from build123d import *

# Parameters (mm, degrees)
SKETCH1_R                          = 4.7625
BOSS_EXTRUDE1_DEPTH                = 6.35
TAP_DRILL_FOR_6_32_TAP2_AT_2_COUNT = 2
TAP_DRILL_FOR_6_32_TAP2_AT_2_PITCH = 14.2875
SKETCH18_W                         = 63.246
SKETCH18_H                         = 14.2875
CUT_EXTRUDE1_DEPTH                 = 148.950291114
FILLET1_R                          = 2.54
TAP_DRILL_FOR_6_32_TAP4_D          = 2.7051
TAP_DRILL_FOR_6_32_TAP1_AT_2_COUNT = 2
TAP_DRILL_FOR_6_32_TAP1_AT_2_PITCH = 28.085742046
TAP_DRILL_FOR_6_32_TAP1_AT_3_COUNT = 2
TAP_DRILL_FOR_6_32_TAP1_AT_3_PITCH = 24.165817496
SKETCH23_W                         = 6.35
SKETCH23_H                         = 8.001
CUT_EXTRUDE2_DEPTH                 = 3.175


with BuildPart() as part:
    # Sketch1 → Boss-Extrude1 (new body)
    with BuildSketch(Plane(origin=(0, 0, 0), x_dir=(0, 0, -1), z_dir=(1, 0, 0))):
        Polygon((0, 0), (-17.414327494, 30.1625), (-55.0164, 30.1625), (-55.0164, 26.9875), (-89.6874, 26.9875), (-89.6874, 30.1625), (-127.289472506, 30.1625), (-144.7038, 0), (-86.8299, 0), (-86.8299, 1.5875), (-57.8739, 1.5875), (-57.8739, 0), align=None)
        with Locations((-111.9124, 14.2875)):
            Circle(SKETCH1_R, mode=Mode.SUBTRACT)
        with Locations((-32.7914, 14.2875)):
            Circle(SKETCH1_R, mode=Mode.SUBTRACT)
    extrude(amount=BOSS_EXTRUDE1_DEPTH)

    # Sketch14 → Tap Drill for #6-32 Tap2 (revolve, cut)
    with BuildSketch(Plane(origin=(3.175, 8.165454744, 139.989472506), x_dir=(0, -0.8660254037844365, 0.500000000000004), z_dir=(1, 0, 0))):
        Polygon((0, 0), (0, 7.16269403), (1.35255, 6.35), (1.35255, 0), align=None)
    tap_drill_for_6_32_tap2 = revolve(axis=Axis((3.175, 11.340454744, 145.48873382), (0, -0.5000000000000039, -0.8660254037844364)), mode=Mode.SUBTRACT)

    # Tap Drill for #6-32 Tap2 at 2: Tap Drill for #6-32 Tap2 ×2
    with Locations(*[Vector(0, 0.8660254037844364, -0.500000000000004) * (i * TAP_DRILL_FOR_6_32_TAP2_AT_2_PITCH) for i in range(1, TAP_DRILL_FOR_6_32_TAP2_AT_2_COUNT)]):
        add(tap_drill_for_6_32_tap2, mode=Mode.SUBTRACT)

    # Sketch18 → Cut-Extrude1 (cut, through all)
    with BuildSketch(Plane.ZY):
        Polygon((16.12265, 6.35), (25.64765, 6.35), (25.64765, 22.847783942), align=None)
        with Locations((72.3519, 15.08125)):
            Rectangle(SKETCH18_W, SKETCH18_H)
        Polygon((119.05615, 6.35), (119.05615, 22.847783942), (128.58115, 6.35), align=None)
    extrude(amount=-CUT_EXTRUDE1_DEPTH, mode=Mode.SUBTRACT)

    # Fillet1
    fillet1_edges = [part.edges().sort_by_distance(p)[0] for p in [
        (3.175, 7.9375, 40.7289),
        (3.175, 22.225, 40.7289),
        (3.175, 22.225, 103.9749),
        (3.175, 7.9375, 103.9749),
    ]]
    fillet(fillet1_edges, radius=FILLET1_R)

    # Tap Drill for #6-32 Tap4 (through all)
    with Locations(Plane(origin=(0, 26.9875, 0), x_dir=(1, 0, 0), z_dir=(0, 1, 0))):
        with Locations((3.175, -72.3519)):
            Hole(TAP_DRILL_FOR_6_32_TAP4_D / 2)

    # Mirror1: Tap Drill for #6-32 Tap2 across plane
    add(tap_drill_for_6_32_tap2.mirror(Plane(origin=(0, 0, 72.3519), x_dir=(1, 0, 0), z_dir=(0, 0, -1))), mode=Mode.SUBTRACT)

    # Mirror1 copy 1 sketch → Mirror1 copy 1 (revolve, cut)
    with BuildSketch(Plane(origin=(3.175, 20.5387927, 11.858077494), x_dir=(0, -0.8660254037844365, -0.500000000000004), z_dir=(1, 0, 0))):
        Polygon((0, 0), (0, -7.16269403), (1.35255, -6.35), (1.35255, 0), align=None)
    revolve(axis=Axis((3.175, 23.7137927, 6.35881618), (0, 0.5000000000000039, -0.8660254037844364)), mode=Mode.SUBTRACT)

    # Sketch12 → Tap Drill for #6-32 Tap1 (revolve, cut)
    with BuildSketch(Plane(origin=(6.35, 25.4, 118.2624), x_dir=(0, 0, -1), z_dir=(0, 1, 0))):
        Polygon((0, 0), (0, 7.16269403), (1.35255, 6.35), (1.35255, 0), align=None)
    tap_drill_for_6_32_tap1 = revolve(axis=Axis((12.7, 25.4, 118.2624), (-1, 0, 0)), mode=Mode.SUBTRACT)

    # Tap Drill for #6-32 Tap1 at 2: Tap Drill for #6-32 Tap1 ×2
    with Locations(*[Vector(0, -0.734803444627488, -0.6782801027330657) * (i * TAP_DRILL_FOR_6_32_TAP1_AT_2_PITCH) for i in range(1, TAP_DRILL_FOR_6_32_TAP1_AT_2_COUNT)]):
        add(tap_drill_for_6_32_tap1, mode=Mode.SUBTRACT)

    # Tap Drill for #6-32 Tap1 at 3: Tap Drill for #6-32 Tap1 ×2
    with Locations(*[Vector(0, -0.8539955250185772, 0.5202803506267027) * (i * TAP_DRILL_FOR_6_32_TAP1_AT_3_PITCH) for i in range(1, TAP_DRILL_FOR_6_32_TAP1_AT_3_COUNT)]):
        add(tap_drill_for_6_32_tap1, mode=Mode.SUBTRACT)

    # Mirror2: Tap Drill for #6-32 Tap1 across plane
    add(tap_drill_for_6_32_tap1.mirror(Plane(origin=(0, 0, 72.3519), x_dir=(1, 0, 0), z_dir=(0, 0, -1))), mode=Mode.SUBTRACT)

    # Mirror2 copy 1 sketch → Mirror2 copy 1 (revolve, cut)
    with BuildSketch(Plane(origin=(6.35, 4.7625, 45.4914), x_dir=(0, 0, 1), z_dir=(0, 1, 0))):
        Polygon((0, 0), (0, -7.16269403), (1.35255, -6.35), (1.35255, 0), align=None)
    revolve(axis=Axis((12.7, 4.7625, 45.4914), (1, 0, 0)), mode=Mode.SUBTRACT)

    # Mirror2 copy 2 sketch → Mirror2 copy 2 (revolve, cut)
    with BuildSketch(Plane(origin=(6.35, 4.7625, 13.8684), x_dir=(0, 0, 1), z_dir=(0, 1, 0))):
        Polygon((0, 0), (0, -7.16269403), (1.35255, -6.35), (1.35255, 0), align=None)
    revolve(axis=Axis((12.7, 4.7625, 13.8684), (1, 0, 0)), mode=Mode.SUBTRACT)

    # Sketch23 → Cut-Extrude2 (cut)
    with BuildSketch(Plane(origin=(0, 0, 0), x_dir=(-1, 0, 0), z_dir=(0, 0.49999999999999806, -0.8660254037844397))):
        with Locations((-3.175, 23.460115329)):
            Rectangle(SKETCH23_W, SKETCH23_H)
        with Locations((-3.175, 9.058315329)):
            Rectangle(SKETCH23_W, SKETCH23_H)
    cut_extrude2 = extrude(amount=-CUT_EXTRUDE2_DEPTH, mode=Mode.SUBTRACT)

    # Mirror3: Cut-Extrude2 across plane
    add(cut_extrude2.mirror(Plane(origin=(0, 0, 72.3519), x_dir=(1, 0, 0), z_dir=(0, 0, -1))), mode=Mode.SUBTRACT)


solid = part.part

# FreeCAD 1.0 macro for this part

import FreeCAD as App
import Part
import Sketcher
Q = App.Units.Quantity


def edges_at(feature, points):
    """Names of the edges that pass closest to the given points."""
    edges = feature.Shape.Edges
    near = lambda p: min(range(len(edges)), key=lambda i: edges[i].distToShape(Part.Vertex(*p))[0])
    return sorted({f"Edge{near(p) + 1}" for p in points})


def add_polygon(sketch, points):
    """Adds a closed chain of lines whose ends are joined by coincident constraints."""
    first, n = sketch.GeometryCount, len(points)
    for a, b in zip(points, points[1:] + points[:1]):
        sketch.addGeometry(Part.LineSegment(App.Vector(*a, 0), App.Vector(*b, 0)), False)
    for i in range(n):
        sketch.addConstraint(Sketcher.Constraint("Coincident", first + i, 2, first + (i + 1) % n, 1))

doc = App.newDocument("Part")
body = doc.addObject("PartDesign::Body", "Body")

sketch1 = body.newObject("Sketcher::SketchObject", "Sketch")
sketch1.AttachmentSupport = (doc.getObject("YZ_Plane"), [""])
sketch1.MapMode = "FlatFace"
add_polygon(sketch1, [(0, 0), (30.2, 17.4), (30.2, 55), (27, 55), (27, 89.7), (30.2, 89.7), (30.2, 127.3), (0, 144.7), (0, 86.8), (1.6, 86.8), (1.6, 57.9), (0, 57.9)])
sketch1.addGeometry(Part.Circle(App.Vector(14.3, 111.9, 0), App.Vector(0, 0, 1), 4.8), False)
sketch1.addGeometry(Part.Circle(App.Vector(14.3, 32.8, 0), App.Vector(0, 0, 1), 4.8), False)
sketch1.addConstraint([
    Sketcher.Constraint("Vertical", 1),
    Sketcher.Constraint("Horizontal", 2),
    Sketcher.Constraint("Vertical", 3),
    Sketcher.Constraint("Horizontal", 4),
    Sketcher.Constraint("Vertical", 5),
    Sketcher.Constraint("Vertical", 7),
    Sketcher.Constraint("Horizontal", 8),
    Sketcher.Constraint("Vertical", 9),
    Sketcher.Constraint("Horizontal", 10),
    Sketcher.Constraint("Vertical", 11),
    Sketcher.Constraint("Coincident", 11, 2, -1, 1),
    Sketcher.Constraint("Equal", 12, 13),
    Sketcher.Constraint("PointOnObject", 6, 2, -2),
    Sketcher.Constraint("Vertical", 12, 3, 13, 3),
    Sketcher.Constraint("Vertical", 1, 2, 4, 2),
    Sketcher.Constraint("Equal", 1, 5),
    Sketcher.Constraint("Equal", 7, 11),
    Sketcher.Constraint("Equal", 0, 6),
    Sketcher.Constraint("Diameter", 12, Q("0.375 in")),
    Sketcher.Constraint("Angle", 0, Q("30 deg")),
    Sketcher.Constraint("DistanceX", 8, 2, 3, 2, Q("1 in")),
    Sketcher.Constraint("DistanceY", 9, 2, 9, 1, Q("1.14 in")),
    Sketcher.Constraint("DistanceX", 13, 3, 2, 2, Q("0.5 in")),
    Sketcher.Constraint("DistanceX", 2, 2, 2, 1, Q("0.125 in")),
    Sketcher.Constraint("DistanceX", 8, 1, 8, 2, Q("0.0625 in")),
    Sketcher.Constraint("DistanceY", 3, 1, 3, 2, Q("1.365 in")),
    Sketcher.Constraint("DistanceY", 1, 2, 12, 3, Q("2.24 in")),
    Sketcher.Constraint("DistanceY", 13, 3, 3, 2, Q("2.24 in")),
    Sketcher.Constraint("DistanceY", 7, 2, 7, 1, Q("2.2785 in")),
])
pad1 = body.newObject("PartDesign::Pad", "Pad")
pad1.Profile = sketch1
pad1.Length = Q("0.25 in")

sketch2 = body.newObject("Sketcher::SketchObject", "Sketch001")
sketch2.AttachmentSupport = (doc.getObject("YZ_Plane"), [""])
sketch2.MapMode = "FlatFace"
sketch2.AttachmentOffset = App.Placement(App.Vector(0, 0, 0.125 * 25.4), App.Rotation())
add_polygon(sketch2, [(4.6, 133.8), (8.2, 140), (7, 140.7), (3.8, 135.2)])
sketch2.addGeometry(Part.LineSegment(App.Vector(8.2, 140, 0), App.Vector(4.6, 133.8, 0)), True)
sketch2.addConstraint([
    Sketcher.Constraint("Coincident", 4, 1, 0, 2),
    Sketcher.Constraint("Coincident", 4, 2, 3, 2),
    Sketcher.Constraint("Perpendicular", 0, 1),
    Sketcher.Constraint("Perpendicular", 1, 2),
    Sketcher.Constraint("Angle", 0, Q("60 deg")),
    Sketcher.Constraint("Angle", 3, Q("-61 deg")),
    Sketcher.Constraint("Distance", 2, Q("0.25 in")),
    Sketcher.Constraint("Distance", 1, 1.35255),
    Sketcher.Constraint("DistanceX", -1, 1, 0, 2, 8.165455),
    Sketcher.Constraint("DistanceY", -1, 1, 0, 2, 139.989473),
])
groove = body.newObject("PartDesign::Groove", "Groove")
groove.Profile = sketch2
groove.ReferenceAxis = (sketch2, ["Axis0"])
groove.Angle = 360
doc.recompute()

datumline = body.newObject("PartDesign::Line", "DatumLine")
datumline.Placement = App.Placement(App.Vector(0, 0, 0), App.Rotation(App.Vector(0, 0, 1), App.Vector(0, 0.866025404, -0.5)))
linearpattern = body.newObject("PartDesign::LinearPattern", "LinearPattern")
linearpattern.Originals = [groove]
linearpattern.Direction = (datumline, [""])
linearpattern.Mode = "offset"
linearpattern.Offset = Q("0.5625 in")
linearpattern.Occurrences = 2
body.Tip = linearpattern

sketch3 = body.newObject("Sketcher::SketchObject", "Sketch002")
sketch3.AttachmentSupport = (doc.getObject("YZ_Plane"), [""])
sketch3.MapMode = "FlatFace"
add_polygon(sketch3, [(6, 16), (6, 26), (23, 26)])
add_polygon(sketch3, [(22, 41), (8, 41), (8, 104), (22, 104)])
add_polygon(sketch3, [(23, 119), (6, 119), (6, 129)])
sketch3.addConstraint([
    Sketcher.Constraint("Vertical", 0),
    Sketcher.Constraint("Horizontal", 1),
    Sketcher.Constraint("Horizontal", 3),
    Sketcher.Constraint("Vertical", 4),
    Sketcher.Constraint("Horizontal", 5),
    Sketcher.Constraint("Vertical", 6),
    Sketcher.Constraint("Horizontal", 7),
    Sketcher.Constraint("Vertical", 8),
    Sketcher.Constraint("Vertical", 2, 2, 7, 2),
    Sketcher.Constraint("Vertical", 1, 2, 9, 2),
    Sketcher.Constraint("Equal", 0, 8),
    Sketcher.Constraint("Angle", 2, Q("-150 deg")),
    Sketcher.Constraint("DistanceY", 4, 1, 4, 2, Q("2.49 in")),
    Sketcher.Constraint("Distance", 2, Q("0.75 in")),
    Sketcher.Constraint("DistanceX", 3, 2, 3, 1, Q("0.5625 in")),
    Sketcher.Constraint("DistanceX", -1, 1, 0, 2, Q("0.25 in")),
    Sketcher.Constraint("DistanceX", -1, 1, 3, 2, Q("0.3125 in")),
    Sketcher.Constraint("DistanceY", 0, 2, 3, 2, Q("0.59375 in")),
    Sketcher.Constraint("DistanceY", 4, 2, 7, 2, Q("0.59375 in")),
    Sketcher.Constraint("DistanceY", -1, 1, 3, 2, Q("1.6035 in")),
])
pocket1 = body.newObject("PartDesign::Pocket", "Pocket")
pocket1.Profile = sketch3
pocket1.Type = "ThroughAll"
pocket1.Reversed = True
doc.recompute()

fillet = body.newObject("PartDesign::Fillet", "Fillet")
fillet.Base = (pocket1, edges_at(pocket1, [
    (3.175, 7.938, 40.729),
    (3.175, 22.225, 40.729),
    (3.175, 22.225, 103.975),
    (3.175, 7.938, 103.975),
]))
fillet.Radius = Q("0.1 in")

sketch4 = body.newObject("Sketcher::SketchObject", "Sketch003")
sketch4.AttachmentSupport = (doc.getObject("XZ_Plane"), [""])
sketch4.MapMode = "FlatFace"
sketch4.AttachmentOffset = App.Placement(App.Vector(0, 0, -1.0625 * 25.4), App.Rotation())
sketch4.addGeometry(Part.Circle(App.Vector(3.2, 72.4, 0), App.Vector(0, 0, 1), 1.4), False)
sketch4.addConstraint([
    Sketcher.Constraint("Diameter", 0, Q("0.1065 in")),
    Sketcher.Constraint("DistanceX", -1, 1, 0, 3, Q("0.125 in")),
    Sketcher.Constraint("DistanceY", -1, 1, 0, 3, Q("2.8485 in")),
])
doc.recompute()
hole = body.newObject("PartDesign::Hole", "Hole")
hole.Profile = sketch4
hole.ThreadType = "None"
hole.Diameter = Q("0.1065 in")
hole.DepthType = "ThroughAll"
hole.Reversed = True
doc.recompute()

datumplane = body.newObject("PartDesign::Plane", "DatumPlane")
datumplane.AttachmentSupport = (doc.getObject("XY_Plane"), [""])
datumplane.MapMode = "FlatFace"
datumplane.AttachmentOffset = App.Placement(App.Vector(0, 0, 2.8485 * 25.4), App.Rotation())
mirrored = body.newObject("PartDesign::Mirrored", "Mirrored")
mirrored.Originals = [groove]
mirrored.MirrorPlane = (datumplane, [""])
body.Tip = mirrored

sketch5 = body.newObject("Sketcher::SketchObject", "Sketch004")
sketch5.AttachmentSupport = (doc.getObject("YZ_Plane"), [""])
sketch5.MapMode = "FlatFace"
sketch5.AttachmentOffset = App.Placement(App.Vector(0, 0, 0.125 * 25.4), App.Rotation())
add_polygon(sketch5, [(20.5, 11.9), (17, 18.1), (16.2, 16.7), (19.4, 11.2)])
sketch5.addGeometry(Part.LineSegment(App.Vector(17, 18.1, 0), App.Vector(20.5, 11.9, 0)), True)
sketch5.addConstraint([
    Sketcher.Constraint("Coincident", 4, 1, 0, 2),
    Sketcher.Constraint("Coincident", 4, 2, 3, 2),
    Sketcher.Constraint("Parallel", 0, 2),
    Sketcher.Constraint("Perpendicular", 2, 3),
    Sketcher.Constraint("Angle", 0, Q("120 deg")),
    Sketcher.Constraint("Angle", 1, Q("-119 deg")),
    Sketcher.Constraint("Distance", 2, Q("0.25 in")),
    Sketcher.Constraint("Distance", 1, 1.57793),
    Sketcher.Constraint("DistanceX", -1, 1, 1, 2, 16.19245),
    Sketcher.Constraint("DistanceY", -1, 1, 0, 2, 18.061152),
])
groove2 = body.newObject("PartDesign::Groove", "Groove001")
groove2.Profile = sketch5
groove2.ReferenceAxis = (sketch5, ["Axis0"])
groove2.Angle = 360

sketch6 = body.newObject("Sketcher::SketchObject", "Sketch005")
sketch6.AttachmentSupport = (doc.getObject("XZ_Plane"), [""])
sketch6.MapMode = "FlatFace"
sketch6.AttachmentOffset = App.Placement(App.Vector(0, 0, -1 * 25.4), App.Rotation())
add_polygon(sketch6, [(-0.8, 118.3), (6.3, 118.3), (6.3, 116.9), (0, 116.9)])
sketch6.addGeometry(Part.LineSegment(App.Vector(6.3, 118.3, 0), App.Vector(-0.8, 118.3, 0)), True)
sketch6.addConstraint([
    Sketcher.Constraint("Horizontal", 0),
    Sketcher.Constraint("Vertical", 1),
    Sketcher.Constraint("Horizontal", 2),
    Sketcher.Constraint("Horizontal", 4),
    Sketcher.Constraint("Coincident", 4, 1, 0, 2),
    Sketcher.Constraint("PointOnObject", 2, 2, -2),
    Sketcher.Constraint("Equal", 0, 4),
    Sketcher.Constraint("Angle", 3, Q("121 deg")),
    Sketcher.Constraint("DistanceX", 2, 2, 2, 1, Q("0.25 in")),
    Sketcher.Constraint("DistanceY", -1, 1, 0, 2, Q("4.656 in")),
    Sketcher.Constraint("DistanceY", 1, 2, 1, 1, 1.35255),
])
groove3 = body.newObject("PartDesign::Groove", "Groove002")
groove3.Profile = sketch6
groove3.ReferenceAxis = (sketch6, ["Axis0"])
groove3.Angle = 360
doc.recompute()

datumline2 = body.newObject("PartDesign::Line", "DatumLine001")
datumline2.Placement = App.Placement(App.Vector(0, 0, 0), App.Rotation(App.Vector(0, 0, 1), App.Vector(0, -0.734803445, -0.678280103)))
linearpattern2 = body.newObject("PartDesign::LinearPattern", "LinearPattern001")
linearpattern2.Originals = [groove3]
linearpattern2.Direction = (datumline2, [""])
linearpattern2.Mode = "offset"
linearpattern2.Offset = 28.085742
linearpattern2.Occurrences = 2
body.Tip = linearpattern2
doc.recompute()

datumline3 = body.newObject("PartDesign::Line", "DatumLine002")
datumline3.Placement = App.Placement(App.Vector(0, 0, 0), App.Rotation(App.Vector(0, 0, 1), App.Vector(0, -0.853995525, 0.520280351)))
linearpattern3 = body.newObject("PartDesign::LinearPattern", "LinearPattern002")
linearpattern3.Originals = [groove3]
linearpattern3.Direction = (datumline3, [""])
linearpattern3.Mode = "offset"
linearpattern3.Offset = 24.165817
linearpattern3.Occurrences = 2
body.Tip = linearpattern3
doc.recompute()

datumplane2 = body.newObject("PartDesign::Plane", "DatumPlane001")
datumplane2.AttachmentSupport = (doc.getObject("XY_Plane"), [""])
datumplane2.MapMode = "FlatFace"
datumplane2.AttachmentOffset = App.Placement(App.Vector(0, 0, 2.8485 * 25.4), App.Rotation())
mirrored2 = body.newObject("PartDesign::Mirrored", "Mirrored001")
mirrored2.Originals = [groove3]
mirrored2.MirrorPlane = (datumplane2, [""])
body.Tip = mirrored2

sketch7 = body.newObject("Sketcher::SketchObject", "Sketch006")
sketch7.AttachmentSupport = (doc.getObject("XZ_Plane"), [""])
sketch7.MapMode = "FlatFace"
sketch7.AttachmentOffset = App.Placement(App.Vector(0, 0, -0.1875 * 25.4), App.Rotation())
add_polygon(sketch7, [(6.3, 45.5), (-0.8, 45.5), (0, 46.8), (6.3, 46.8)])
sketch7.addGeometry(Part.LineSegment(App.Vector(-0.8, 45.5, 0), App.Vector(6.3, 45.5, 0)), True)
sketch7.addConstraint([
    Sketcher.Constraint("Horizontal", 0),
    Sketcher.Constraint("Horizontal", 2),
    Sketcher.Constraint("Vertical", 3),
    Sketcher.Constraint("Horizontal", 4),
    Sketcher.Constraint("Coincident", 4, 1, 0, 2),
    Sketcher.Constraint("PointOnObject", 1, 2, -2),
    Sketcher.Constraint("Vertical", 2, 2, 4, 2),
    Sketcher.Constraint("Angle", 1, Q("59 deg")),
    Sketcher.Constraint("DistanceX", 2, 1, 2, 2, Q("0.25 in")),
    Sketcher.Constraint("DistanceY", -1, 1, 0, 2, Q("1.791 in")),
    Sketcher.Constraint("DistanceY", 3, 2, 3, 1, 1.35255),
])
groove4 = body.newObject("PartDesign::Groove", "Groove003")
groove4.Profile = sketch7
groove4.ReferenceAxis = (sketch7, ["Axis0"])
groove4.Angle = 360

sketch8 = body.newObject("Sketcher::SketchObject", "Sketch007")
sketch8.AttachmentSupport = (doc.getObject("XZ_Plane"), [""])
sketch8.MapMode = "FlatFace"
sketch8.AttachmentOffset = App.Placement(App.Vector(0, 0, -0.1875 * 25.4), App.Rotation())
add_polygon(sketch8, [(6.3, 13.9), (-0.8, 13.9), (0, 15.2), (6.3, 15.2)])
sketch8.addGeometry(Part.LineSegment(App.Vector(-0.8, 13.9, 0), App.Vector(6.3, 13.9, 0)), True)
sketch8.addConstraint([
    Sketcher.Constraint("Horizontal", 0),
    Sketcher.Constraint("Horizontal", 2),
    Sketcher.Constraint("Vertical", 3),
    Sketcher.Constraint("Horizontal", 4),
    Sketcher.Constraint("Coincident", 4, 1, 0, 2),
    Sketcher.Constraint("PointOnObject", 1, 2, -2),
    Sketcher.Constraint("Vertical", 2, 2, 4, 2),
    Sketcher.Constraint("Angle", 1, Q("59 deg")),
    Sketcher.Constraint("DistanceX", 2, 1, 2, 2, Q("0.25 in")),
    Sketcher.Constraint("DistanceY", -1, 1, 0, 2, Q("0.546 in")),
    Sketcher.Constraint("DistanceY", 3, 2, 3, 1, 1.35255),
])
groove5 = body.newObject("PartDesign::Groove", "Groove004")
groove5.Profile = sketch8
groove5.ReferenceAxis = (sketch8, ["Axis0"])
groove5.Angle = 360

sketch9 = body.newObject("Sketcher::SketchObject", "Sketch008")
sketch9.Placement = App.Placement(App.Vector(0, 0, 0), App.Rotation(App.Vector(-1, 0, 0), App.Vector(0, 0.866025404, 0.5), App.Vector(0, 0.5, -0.866025404), "ZXY"))
add_polygon(sketch9, [(-6, 27), (-6, 19), (0, 19), (0, 27)])
add_polygon(sketch9, [(-6, 13), (-6, 5), (0, 5), (0, 13)])
sketch9.addConstraint([
    Sketcher.Constraint("Vertical", 0),
    Sketcher.Constraint("Horizontal", 1),
    Sketcher.Constraint("Vertical", 2),
    Sketcher.Constraint("Horizontal", 3),
    Sketcher.Constraint("Vertical", 4),
    Sketcher.Constraint("Horizontal", 5),
    Sketcher.Constraint("Vertical", 6),
    Sketcher.Constraint("Horizontal", 7),
    Sketcher.Constraint("PointOnObject", 1, 2, -2),
    Sketcher.Constraint("PointOnObject", 5, 2, -2),
    Sketcher.Constraint("Vertical", 3, 2, 4, 2),
    Sketcher.Constraint("Equal", 2, 4),
    Sketcher.Constraint("DistanceX", 1, 1, 1, 2, Q("0.25 in")),
    Sketcher.Constraint("DistanceY", 0, 2, 0, 1, Q("0.315 in")),
    Sketcher.Constraint("DistanceY", 4, 2, 0, 2, Q("0.567 in")),
    Sketcher.Constraint("DistanceY", -1, 1, 0, 2, 19.459615),
])
pocket2 = body.newObject("PartDesign::Pocket", "Pocket001")
pocket2.Profile = sketch9
pocket2.Length = Q("0.125 in")
doc.recompute()

datumplane3 = body.newObject("PartDesign::Plane", "DatumPlane002")
datumplane3.AttachmentSupport = (doc.getObject("XY_Plane"), [""])
datumplane3.MapMode = "FlatFace"
datumplane3.AttachmentOffset = App.Placement(App.Vector(0, 0, 2.8485 * 25.4), App.Rotation())
mirrored3 = body.newObject("PartDesign::Mirrored", "Mirrored002")
mirrored3.Originals = [pocket2]
mirrored3.MirrorPlane = (datumplane3, [""])
body.Tip = mirrored3

doc.recompute()
